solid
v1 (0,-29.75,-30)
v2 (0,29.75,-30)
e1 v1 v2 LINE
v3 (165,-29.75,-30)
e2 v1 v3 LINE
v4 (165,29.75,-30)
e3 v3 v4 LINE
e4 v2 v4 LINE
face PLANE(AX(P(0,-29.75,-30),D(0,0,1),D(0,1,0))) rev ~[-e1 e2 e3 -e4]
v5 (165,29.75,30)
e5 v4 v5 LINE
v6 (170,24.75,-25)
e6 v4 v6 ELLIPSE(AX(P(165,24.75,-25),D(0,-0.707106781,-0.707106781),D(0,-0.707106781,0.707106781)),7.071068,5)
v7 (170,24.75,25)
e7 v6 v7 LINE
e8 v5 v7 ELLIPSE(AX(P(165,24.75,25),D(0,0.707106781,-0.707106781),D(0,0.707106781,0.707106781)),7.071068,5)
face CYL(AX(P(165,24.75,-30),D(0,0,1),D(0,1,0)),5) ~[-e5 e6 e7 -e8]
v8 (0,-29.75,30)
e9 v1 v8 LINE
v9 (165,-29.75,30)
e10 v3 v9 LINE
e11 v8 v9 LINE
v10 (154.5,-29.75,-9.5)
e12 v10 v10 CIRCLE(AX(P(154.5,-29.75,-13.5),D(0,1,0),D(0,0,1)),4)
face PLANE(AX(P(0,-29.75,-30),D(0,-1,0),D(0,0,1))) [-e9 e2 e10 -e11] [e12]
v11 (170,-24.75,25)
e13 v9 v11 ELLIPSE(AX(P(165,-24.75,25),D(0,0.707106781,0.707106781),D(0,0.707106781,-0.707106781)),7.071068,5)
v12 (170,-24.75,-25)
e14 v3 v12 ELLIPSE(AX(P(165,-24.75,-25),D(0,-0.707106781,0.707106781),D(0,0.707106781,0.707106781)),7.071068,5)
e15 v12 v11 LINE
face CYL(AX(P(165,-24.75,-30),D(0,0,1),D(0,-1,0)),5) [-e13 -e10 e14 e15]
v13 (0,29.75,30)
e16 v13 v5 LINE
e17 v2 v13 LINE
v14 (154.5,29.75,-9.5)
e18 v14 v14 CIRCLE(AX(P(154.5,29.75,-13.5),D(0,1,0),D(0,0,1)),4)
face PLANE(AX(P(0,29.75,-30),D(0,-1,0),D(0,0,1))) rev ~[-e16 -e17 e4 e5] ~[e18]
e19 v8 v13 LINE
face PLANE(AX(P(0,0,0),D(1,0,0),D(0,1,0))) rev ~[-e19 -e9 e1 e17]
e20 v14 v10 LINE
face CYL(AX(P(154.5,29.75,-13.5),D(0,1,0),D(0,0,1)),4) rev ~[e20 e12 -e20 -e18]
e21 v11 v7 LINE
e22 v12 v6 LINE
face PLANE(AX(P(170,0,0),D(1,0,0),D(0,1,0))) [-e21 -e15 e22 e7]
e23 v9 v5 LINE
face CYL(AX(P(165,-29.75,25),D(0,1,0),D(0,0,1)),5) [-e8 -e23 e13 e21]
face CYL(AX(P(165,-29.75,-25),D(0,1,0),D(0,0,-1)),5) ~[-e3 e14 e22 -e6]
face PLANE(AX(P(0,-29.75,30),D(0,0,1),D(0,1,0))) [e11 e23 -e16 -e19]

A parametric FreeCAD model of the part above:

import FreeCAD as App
import Part
import Sketcher
Q = App.Units.Quantity


def edges_at(feature, points):
    """Names of the edges that pass closest to the given points."""
    edges = feature.Shape.Edges
    near = lambda p: min(range(len(edges)), key=lambda i: edges[i].distToShape(Part.Vertex(*p))[0])
    return sorted({f"Edge{near(p) + 1}" for p in points})

doc = App.newDocument("Part")
params = doc.addObject("Spreadsheet::Sheet", "Params")
for row, (alias, value) in enumerate([
    ("sketch1_height", "60 mm"),
    ("sketch1_width", "59.5 mm"),
    ("pad1_length", "170 mm"),
    ("fillet_radius", "5 mm"),
    ("sketch2_diameter", "8 mm"),
], start=1):
    params.set(f"A{row}", alias)
    params.set(f"B{row}", "=" + value)
    params.setAlias(f"B{row}", alias)

body = doc.addObject("PartDesign::Body", "Body")

# Sketch on YZ plane
sketch1 = body.newObject("Sketcher::SketchObject", "Sketch")
sketch1.AttachmentSupport = (doc.getObject("YZ_Plane"), [""])
sketch1.MapMode = "FlatFace"
sketch1.addGeometry([
    Part.LineSegment(App.Vector(-29.75, 30, 0), App.Vector(-29.75, -30, 0)),
    Part.LineSegment(App.Vector(-29.75, -30, 0), App.Vector(29.75, -30, 0)),
    Part.LineSegment(App.Vector(29.75, -30, 0), App.Vector(29.75, 30, 0)),
    Part.LineSegment(App.Vector(29.75, 30, 0), App.Vector(-29.75, 30, 0)),
], False)
sketch1.addConstraint([
    Sketcher.Constraint("Coincident", 0, 2, 1, 1),
    Sketcher.Constraint("Coincident", 1, 2, 2, 1),
    Sketcher.Constraint("Coincident", 2, 2, 3, 1),
    Sketcher.Constraint("Coincident", 3, 2, 0, 1),
    Sketcher.Constraint("Vertical", 0),
    Sketcher.Constraint("Horizontal", 1),
    Sketcher.Constraint("Vertical", 2),
    Sketcher.Constraint("Horizontal", 3),
    Sketcher.Constraint("Symmetric", 0, 2, 2, 2, -1, 1),
    Sketcher.Constraint("DistanceY", 0, 2, 0, 1, Q("60 mm")),
    Sketcher.Constraint("DistanceX", 1, 1, 1, 2, Q("59.5 mm")),
])
sketch1.setExpression("Constraints[9]", "Params.sketch1_height")
sketch1.setExpression("Constraints[10]", "Params.sketch1_width")
pad1 = body.newObject("PartDesign::Pad", "Pad")
pad1.Profile = sketch1
pad1.setExpression("Length", "Params.pad1_length")
doc.recompute()

fillet = body.newObject("PartDesign::Fillet", "Fillet")
fillet.Base = (pad1, edges_at(pad1, [
    (170, 29.75, 0),
    (170, 0, 30),
    (170, 0, -30),
    (170, -29.75, 0),
]))
fillet.setExpression("Radius", "Params.fillet_radius")

# Sketch on XZ plane
sketch2 = body.newObject("Sketcher::SketchObject", "Sketch001")
sketch2.AttachmentSupport = (doc.getObject("XZ_Plane"), [""])
sketch2.MapMode = "FlatFace"
sketch2.AttachmentOffset = App.Placement(App.Vector(0, 0, -29.75), App.Rotation())
sketch2.addGeometry(Part.Circle(App.Vector(154.5, -13.5, 0), App.Vector(0, 0, 1), 4), False)
sketch2.addConstraint([
    Sketcher.Constraint("Diameter", 0, Q("8 mm")),
    Sketcher.Constraint("DistanceX", -1, 1, 0, 3, Q("154.5 mm")),
    Sketcher.Constraint("DistanceY", 0, 3, -1, 1, Q("13.5 mm")),
])
sketch2.setExpression("Constraints[0]", "Params.sketch2_diameter")
pocket1 = body.newObject("PartDesign::Pocket", "Pocket")
pocket1.Profile = sketch2
pocket1.Type = "ThroughAll"
pocket1.Reversed = True

doc.recompute()
